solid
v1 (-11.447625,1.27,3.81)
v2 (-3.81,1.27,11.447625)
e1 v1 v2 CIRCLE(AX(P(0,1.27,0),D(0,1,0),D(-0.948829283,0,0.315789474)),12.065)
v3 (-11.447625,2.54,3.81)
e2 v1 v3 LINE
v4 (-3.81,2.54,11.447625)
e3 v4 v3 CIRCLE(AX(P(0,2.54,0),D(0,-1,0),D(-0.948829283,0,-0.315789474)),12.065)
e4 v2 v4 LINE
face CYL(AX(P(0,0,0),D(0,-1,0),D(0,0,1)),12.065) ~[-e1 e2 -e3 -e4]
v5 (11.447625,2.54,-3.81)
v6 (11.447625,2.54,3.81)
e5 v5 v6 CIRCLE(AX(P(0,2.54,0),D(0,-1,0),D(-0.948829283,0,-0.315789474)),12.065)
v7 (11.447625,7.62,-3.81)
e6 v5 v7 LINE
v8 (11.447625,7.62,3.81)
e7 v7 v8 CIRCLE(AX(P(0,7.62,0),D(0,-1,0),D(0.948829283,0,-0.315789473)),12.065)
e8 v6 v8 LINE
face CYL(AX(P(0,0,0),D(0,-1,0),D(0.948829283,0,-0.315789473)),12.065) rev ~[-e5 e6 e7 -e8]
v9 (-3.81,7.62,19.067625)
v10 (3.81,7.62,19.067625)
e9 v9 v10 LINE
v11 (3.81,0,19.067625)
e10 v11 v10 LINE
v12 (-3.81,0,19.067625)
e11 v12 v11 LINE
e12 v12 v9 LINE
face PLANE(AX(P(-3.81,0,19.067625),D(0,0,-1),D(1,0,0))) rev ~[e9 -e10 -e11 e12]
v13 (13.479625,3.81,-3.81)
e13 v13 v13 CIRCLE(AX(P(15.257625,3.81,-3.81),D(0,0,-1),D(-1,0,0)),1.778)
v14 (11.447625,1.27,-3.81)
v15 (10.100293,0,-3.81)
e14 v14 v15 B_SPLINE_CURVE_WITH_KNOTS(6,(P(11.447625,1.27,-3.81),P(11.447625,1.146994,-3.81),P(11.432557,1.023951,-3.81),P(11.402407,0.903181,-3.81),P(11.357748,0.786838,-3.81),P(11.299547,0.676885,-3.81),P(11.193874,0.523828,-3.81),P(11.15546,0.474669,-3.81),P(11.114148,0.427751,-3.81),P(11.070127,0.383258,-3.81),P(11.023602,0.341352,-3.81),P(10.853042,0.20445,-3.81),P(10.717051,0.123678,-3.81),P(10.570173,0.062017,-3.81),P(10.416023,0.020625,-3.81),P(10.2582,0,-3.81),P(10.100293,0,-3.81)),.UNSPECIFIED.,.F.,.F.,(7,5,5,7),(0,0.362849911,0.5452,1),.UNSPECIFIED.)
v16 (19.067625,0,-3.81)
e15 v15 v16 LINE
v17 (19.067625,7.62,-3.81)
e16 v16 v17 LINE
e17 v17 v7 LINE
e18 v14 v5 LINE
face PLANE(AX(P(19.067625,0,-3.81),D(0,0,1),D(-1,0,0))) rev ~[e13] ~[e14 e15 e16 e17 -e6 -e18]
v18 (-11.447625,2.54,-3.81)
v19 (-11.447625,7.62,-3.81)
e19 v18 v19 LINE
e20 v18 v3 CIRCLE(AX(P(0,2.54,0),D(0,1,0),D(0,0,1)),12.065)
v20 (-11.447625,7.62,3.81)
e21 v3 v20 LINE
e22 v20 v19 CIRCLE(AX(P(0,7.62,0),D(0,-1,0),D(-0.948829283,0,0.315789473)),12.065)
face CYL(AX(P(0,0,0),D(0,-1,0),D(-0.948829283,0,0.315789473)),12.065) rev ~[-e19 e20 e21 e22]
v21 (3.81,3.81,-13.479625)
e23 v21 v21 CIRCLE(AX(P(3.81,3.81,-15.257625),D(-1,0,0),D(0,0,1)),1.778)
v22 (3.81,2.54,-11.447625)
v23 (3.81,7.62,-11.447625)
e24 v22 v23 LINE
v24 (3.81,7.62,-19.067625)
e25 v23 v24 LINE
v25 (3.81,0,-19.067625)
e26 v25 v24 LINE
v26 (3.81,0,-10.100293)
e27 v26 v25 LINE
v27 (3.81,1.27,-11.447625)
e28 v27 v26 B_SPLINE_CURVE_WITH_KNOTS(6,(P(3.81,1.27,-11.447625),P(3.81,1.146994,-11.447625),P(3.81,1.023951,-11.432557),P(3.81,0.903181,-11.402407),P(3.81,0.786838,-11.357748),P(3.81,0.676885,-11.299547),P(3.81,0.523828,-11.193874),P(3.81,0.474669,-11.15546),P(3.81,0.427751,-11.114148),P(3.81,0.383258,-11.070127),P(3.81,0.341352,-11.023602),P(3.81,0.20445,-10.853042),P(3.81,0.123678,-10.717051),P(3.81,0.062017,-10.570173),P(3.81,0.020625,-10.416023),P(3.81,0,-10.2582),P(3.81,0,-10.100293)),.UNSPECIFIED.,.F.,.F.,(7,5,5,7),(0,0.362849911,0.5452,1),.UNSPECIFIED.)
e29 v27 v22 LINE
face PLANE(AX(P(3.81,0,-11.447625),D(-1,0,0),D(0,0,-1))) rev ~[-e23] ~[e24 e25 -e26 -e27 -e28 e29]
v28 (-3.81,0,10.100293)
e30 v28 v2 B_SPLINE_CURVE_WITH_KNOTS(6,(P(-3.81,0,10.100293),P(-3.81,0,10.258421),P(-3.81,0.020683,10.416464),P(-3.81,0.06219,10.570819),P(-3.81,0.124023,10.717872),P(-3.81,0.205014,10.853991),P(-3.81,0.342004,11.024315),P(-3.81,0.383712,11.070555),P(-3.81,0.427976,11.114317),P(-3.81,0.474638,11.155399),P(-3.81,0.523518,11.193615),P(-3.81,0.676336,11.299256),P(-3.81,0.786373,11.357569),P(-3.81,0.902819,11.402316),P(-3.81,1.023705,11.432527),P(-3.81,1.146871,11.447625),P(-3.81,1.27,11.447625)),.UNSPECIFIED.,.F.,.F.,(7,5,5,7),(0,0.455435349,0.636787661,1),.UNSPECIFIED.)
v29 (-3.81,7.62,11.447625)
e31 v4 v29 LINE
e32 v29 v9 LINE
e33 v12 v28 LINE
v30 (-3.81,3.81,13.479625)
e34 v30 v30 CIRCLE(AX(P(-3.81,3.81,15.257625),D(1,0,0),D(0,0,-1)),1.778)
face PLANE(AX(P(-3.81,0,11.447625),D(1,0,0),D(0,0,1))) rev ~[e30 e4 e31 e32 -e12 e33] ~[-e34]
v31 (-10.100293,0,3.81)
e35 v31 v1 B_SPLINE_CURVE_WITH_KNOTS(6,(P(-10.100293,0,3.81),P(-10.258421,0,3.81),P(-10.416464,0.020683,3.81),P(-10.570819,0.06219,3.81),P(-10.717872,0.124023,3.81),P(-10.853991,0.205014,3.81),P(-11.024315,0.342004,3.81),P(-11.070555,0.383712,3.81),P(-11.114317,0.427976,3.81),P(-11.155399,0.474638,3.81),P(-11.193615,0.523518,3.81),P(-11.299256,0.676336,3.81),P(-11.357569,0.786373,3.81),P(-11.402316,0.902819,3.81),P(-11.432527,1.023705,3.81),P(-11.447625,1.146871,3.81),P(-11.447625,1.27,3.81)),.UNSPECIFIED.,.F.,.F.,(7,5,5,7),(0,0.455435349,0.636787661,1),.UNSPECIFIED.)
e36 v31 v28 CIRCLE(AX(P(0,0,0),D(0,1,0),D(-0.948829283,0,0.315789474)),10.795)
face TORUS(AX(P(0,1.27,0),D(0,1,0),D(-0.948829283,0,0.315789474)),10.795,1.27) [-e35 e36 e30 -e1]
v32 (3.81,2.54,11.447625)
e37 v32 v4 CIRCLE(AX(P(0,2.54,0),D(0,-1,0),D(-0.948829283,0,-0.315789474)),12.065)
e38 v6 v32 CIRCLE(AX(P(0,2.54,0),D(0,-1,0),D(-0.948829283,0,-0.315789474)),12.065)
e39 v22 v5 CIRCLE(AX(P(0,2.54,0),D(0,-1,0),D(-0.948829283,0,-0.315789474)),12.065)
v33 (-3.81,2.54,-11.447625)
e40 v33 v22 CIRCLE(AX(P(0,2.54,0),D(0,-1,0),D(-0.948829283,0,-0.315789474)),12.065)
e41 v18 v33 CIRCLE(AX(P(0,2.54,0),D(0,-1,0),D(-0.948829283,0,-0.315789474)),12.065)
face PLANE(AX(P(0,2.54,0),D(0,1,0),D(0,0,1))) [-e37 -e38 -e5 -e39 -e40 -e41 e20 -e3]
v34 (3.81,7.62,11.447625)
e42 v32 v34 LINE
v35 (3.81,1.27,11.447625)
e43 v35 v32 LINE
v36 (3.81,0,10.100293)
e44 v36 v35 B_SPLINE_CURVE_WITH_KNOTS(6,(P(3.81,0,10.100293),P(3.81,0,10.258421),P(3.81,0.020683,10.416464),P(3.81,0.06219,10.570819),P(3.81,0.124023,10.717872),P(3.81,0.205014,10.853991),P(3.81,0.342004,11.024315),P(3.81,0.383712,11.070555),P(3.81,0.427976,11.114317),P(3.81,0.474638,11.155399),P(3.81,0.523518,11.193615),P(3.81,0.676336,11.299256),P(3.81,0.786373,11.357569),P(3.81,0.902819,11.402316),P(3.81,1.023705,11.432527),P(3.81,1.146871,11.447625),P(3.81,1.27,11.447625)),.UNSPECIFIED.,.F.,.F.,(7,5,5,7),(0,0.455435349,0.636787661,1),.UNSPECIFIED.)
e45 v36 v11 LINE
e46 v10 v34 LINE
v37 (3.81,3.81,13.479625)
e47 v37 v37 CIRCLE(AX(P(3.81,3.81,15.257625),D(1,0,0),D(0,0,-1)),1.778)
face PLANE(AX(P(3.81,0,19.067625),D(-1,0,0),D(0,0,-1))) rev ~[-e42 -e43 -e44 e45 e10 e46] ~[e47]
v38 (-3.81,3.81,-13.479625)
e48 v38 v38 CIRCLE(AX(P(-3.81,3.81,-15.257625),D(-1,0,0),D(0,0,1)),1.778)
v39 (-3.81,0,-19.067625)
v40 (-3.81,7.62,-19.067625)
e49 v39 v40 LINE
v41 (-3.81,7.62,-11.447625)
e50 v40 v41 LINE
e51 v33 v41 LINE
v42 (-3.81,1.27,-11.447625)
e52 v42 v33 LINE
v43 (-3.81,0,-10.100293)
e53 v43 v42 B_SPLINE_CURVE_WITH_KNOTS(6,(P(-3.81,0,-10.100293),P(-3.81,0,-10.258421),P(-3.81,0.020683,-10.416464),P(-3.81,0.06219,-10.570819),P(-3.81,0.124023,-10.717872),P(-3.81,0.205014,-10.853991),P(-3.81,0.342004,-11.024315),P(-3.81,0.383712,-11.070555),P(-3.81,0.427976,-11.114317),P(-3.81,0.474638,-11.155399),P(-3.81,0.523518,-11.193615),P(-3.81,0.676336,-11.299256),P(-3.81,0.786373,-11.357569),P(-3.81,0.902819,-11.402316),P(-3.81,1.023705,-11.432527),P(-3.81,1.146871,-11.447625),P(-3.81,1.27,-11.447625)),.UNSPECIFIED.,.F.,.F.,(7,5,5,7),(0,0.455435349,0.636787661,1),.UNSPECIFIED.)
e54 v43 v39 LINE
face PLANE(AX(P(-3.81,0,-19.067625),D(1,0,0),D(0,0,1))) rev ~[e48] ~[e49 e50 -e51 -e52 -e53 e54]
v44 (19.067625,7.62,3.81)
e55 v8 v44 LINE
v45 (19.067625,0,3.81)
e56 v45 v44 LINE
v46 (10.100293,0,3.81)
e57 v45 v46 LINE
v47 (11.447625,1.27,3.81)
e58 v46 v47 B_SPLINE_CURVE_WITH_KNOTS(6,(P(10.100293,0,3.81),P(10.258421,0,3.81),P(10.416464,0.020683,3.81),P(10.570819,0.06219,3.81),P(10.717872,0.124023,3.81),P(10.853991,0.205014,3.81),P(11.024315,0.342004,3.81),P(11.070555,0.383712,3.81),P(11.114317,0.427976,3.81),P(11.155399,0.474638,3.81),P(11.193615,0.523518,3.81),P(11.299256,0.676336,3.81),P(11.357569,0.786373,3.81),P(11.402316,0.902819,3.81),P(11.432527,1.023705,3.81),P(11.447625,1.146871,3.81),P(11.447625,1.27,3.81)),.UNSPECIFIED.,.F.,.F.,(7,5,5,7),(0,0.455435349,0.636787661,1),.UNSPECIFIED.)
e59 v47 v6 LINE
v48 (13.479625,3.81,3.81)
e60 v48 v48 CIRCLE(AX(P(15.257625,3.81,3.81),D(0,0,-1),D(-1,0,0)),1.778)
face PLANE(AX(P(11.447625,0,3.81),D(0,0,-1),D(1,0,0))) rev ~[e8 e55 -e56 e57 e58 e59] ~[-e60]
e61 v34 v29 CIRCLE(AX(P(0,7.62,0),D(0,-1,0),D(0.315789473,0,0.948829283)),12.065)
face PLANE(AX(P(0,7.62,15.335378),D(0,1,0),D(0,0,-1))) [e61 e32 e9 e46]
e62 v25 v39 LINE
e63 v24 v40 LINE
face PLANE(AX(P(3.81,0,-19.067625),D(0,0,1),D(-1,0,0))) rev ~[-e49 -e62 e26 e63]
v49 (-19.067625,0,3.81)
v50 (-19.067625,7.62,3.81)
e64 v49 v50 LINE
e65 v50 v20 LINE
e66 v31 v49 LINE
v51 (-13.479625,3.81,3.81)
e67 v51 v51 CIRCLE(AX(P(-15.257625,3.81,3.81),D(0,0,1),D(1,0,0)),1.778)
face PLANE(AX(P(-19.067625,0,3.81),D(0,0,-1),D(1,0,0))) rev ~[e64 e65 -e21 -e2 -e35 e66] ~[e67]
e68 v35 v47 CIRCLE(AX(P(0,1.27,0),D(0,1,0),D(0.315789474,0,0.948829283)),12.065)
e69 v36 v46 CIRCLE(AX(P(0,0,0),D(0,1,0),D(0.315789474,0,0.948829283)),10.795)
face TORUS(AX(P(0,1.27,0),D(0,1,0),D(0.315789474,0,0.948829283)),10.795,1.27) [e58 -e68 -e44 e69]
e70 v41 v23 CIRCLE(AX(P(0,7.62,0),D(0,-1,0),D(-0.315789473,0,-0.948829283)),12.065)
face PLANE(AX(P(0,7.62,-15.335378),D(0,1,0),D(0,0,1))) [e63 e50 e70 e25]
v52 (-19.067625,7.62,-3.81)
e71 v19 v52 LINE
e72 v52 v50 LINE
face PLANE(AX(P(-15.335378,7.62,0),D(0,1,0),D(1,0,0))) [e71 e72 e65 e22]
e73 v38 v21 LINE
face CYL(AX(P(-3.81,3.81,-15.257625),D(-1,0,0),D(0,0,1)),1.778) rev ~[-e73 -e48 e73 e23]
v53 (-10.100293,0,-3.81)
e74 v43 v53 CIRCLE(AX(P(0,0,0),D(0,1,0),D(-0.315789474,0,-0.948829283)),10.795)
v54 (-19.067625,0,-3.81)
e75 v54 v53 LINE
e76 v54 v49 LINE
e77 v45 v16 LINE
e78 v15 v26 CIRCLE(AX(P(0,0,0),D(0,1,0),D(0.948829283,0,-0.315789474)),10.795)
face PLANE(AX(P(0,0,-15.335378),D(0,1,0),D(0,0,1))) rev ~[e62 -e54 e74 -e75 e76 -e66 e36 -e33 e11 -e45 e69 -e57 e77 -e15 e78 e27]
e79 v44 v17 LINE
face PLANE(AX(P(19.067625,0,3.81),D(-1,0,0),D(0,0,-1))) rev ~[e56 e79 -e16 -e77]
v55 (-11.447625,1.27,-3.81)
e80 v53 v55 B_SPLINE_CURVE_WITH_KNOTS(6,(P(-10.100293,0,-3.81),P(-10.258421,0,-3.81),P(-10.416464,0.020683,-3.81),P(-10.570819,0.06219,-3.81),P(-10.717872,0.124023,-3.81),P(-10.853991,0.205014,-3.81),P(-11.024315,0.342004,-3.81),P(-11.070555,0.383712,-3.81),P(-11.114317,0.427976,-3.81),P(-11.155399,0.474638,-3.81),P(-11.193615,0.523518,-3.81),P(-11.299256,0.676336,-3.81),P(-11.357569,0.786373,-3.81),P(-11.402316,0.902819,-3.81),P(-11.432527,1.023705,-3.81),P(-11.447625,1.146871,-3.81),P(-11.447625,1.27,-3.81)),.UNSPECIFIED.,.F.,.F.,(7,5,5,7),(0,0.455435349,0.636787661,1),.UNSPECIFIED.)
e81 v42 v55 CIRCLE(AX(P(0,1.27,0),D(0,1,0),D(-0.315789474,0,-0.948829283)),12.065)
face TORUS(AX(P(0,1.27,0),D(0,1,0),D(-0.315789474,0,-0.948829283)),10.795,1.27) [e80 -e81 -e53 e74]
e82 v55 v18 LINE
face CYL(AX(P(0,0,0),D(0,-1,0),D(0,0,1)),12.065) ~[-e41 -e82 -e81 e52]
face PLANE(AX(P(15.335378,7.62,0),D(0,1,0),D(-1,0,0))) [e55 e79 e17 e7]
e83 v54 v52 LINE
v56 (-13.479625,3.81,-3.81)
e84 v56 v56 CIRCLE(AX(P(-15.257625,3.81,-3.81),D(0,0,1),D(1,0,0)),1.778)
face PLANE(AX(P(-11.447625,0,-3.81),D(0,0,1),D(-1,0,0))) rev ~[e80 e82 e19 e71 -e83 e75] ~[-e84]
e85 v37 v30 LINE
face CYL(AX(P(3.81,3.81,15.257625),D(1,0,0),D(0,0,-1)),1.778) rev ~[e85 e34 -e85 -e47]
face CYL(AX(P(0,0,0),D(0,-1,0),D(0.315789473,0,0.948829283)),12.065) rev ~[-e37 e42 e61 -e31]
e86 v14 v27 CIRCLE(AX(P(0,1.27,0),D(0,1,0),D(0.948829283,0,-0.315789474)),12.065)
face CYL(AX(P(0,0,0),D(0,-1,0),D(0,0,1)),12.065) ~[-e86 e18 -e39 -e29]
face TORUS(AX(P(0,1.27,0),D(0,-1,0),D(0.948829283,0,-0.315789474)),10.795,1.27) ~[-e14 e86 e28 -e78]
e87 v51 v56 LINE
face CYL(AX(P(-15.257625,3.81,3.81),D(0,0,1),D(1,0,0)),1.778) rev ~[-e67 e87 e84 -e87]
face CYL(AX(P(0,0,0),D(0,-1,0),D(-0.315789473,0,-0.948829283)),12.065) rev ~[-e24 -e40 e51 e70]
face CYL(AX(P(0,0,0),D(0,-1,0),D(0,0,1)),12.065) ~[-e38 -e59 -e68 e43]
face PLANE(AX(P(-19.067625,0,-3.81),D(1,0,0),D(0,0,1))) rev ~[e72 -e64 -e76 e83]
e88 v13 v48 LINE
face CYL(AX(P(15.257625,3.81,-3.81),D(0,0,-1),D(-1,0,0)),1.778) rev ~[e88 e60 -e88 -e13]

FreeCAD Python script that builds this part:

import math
import FreeCAD as App
import Part
import Sketcher

V = App.Vector
Q = App.Units.Quantity


def edges_at(feature, points):
    """Names of the edges that pass closest to the given points."""
    edges = feature.Shape.Edges
    near = lambda p: min(range(len(edges)), key=lambda i: edges[i].distToShape(Part.Vertex(*p))[0])
    return sorted({f"Edge{near(p) + 1}" for p in points})

doc = App.newDocument("Part")
body = doc.addObject("PartDesign::Body", "Body")

# Sketch on XZ plane
sketch1 = doc.addObject("Sketcher::SketchObject", "Sketch")
body.addObject(sketch1)
sketch1.AttachmentSupport = (doc.XZ_Plane, [""])
sketch1.MapMode = "FlatFace"
sketch1.addGeometry(Part.Circle(V(0, 0, 0), V(0, 0, 1), 12.065), False)
sketch1.addConstraint(Sketcher.Constraint("Coincident", 0, 3, -1, 1))
sketch1.addConstraint(Sketcher.Constraint("Diameter", 0, Q("0.95 in")))
pad1 = doc.addObject("PartDesign::Pad", "Pad")
body.addObject(pad1)
pad1.Profile = sketch1
pad1.Length = Q("0.1 in")
pad1.Reversed = True

# Sketch on XZ plane
sketch2 = doc.addObject("Sketcher::SketchObject", "Sketch001")
body.addObject(sketch2)
sketch2.AttachmentSupport = (doc.XZ_Plane, [""])
sketch2.MapMode = "FlatFace"
sketch2.addGeometry(Part.LineSegment(V(-11.447625, -3.81, 0), V(-19.067625, -3.81, 0)), False)
sketch2.addGeometry(Part.LineSegment(V(-19.067625, -3.81, 0), V(-19.067625, 3.81, 0)), False)
sketch2.addGeometry(Part.LineSegment(V(-19.067625, 3.81, 0), V(-11.447625, 3.81, 0)), False)
sketch2.addGeometry(Part.ArcOfCircle(Part.Circle(V(0, 0, 0), V(0, 0, 1), 12.065), math.radians(161.59152), math.radians(198.40848)), False)
sketch2.addConstraint(Sketcher.Constraint("Coincident", 0, 2, 1, 1))
sketch2.addConstraint(Sketcher.Constraint("Coincident", 1, 2, 2, 1))
sketch2.addConstraint(Sketcher.Constraint("Coincident", 2, 2, 3, 1))
sketch2.addConstraint(Sketcher.Constraint("Coincident", 3, 2, 0, 1))
sketch2.addConstraint(Sketcher.Constraint("Horizontal", 0))
sketch2.addConstraint(Sketcher.Constraint("Vertical", 1))
sketch2.addConstraint(Sketcher.Constraint("Horizontal", 2))
sketch2.addConstraint(Sketcher.Constraint("Coincident", 3, 3, -1, 1))
sketch2.addConstraint(Sketcher.Constraint("Vertical", 2, 2, 3, 2))
sketch2.addConstraint(Sketcher.Constraint("Equal", 2, 1))
sketch2.addConstraint(Sketcher.Constraint("DistanceX", 0, 2, 0, 1, Q("0.3 in")))
sketch2.addConstraint(Sketcher.Constraint("Radius", 3, Q("0.475 in")))
pad2 = doc.addObject("PartDesign::Pad", "Pad001")
body.addObject(pad2)
pad2.Profile = sketch2
pad2.Length = Q("0.3 in")
pad2.Reversed = True
doc.recompute()

polarpattern = doc.addObject("PartDesign::PolarPattern", "PolarPattern")
body.addObject(polarpattern)
polarpattern.Originals = [pad2]
polarpattern.Axis = (doc.Y_Axis, [""])
polarpattern.Angle = 360
polarpattern.Occurrences = 4
body.Tip = polarpattern

# Sketch on XY plane
sketch3 = doc.addObject("Sketcher::SketchObject", "Sketch002")
body.addObject(sketch3)
sketch3.AttachmentSupport = (doc.XY_Plane, [""])
sketch3.MapMode = "FlatFace"
sketch3.AttachmentOffset = App.Placement(V(0, 0, 0.15 * 25.4), App.Rotation())
sketch3.addGeometry(Part.Circle(V(-15.257625, 3.81, 0), V(0, 0, 1), 1.778), False)
sketch3.addConstraint(Sketcher.Constraint("Diameter", 0, Q("0.14 in")))
sketch3.addConstraint(Sketcher.Constraint("DistanceY", -1, 1, 0, 3, Q("0.15 in")))
sketch3.addConstraint(Sketcher.Constraint("DistanceX", 0, 3, -1, 1, Q("15.257625 mm")))
pocket1 = doc.addObject("PartDesign::Pocket", "Pocket")
body.addObject(pocket1)
pocket1.Profile = sketch3
pocket1.Length = Q("0.3 in")
doc.recompute()

polarpattern2 = doc.addObject("PartDesign::PolarPattern", "PolarPattern001")
body.addObject(polarpattern2)
polarpattern2.Originals = [pocket1]
polarpattern2.Axis = (doc.Y_Axis, [""])
polarpattern2.Angle = 360
polarpattern2.Occurrences = 4
body.Tip = polarpattern2
doc.recompute()

fillet = doc.addObject("PartDesign::Fillet", "Fillet")
body.addObject(fillet)
fillet.Base = (polarpattern2, edges_at(polarpattern2, [
    (8.531, 0, 8.531),
    (8.531, 0, -8.531),
    (-8.531, 0, -8.531),
    (-8.531, 0, 8.531),
]))
fillet.Radius = Q("0.05 in")

doc.recompute()
